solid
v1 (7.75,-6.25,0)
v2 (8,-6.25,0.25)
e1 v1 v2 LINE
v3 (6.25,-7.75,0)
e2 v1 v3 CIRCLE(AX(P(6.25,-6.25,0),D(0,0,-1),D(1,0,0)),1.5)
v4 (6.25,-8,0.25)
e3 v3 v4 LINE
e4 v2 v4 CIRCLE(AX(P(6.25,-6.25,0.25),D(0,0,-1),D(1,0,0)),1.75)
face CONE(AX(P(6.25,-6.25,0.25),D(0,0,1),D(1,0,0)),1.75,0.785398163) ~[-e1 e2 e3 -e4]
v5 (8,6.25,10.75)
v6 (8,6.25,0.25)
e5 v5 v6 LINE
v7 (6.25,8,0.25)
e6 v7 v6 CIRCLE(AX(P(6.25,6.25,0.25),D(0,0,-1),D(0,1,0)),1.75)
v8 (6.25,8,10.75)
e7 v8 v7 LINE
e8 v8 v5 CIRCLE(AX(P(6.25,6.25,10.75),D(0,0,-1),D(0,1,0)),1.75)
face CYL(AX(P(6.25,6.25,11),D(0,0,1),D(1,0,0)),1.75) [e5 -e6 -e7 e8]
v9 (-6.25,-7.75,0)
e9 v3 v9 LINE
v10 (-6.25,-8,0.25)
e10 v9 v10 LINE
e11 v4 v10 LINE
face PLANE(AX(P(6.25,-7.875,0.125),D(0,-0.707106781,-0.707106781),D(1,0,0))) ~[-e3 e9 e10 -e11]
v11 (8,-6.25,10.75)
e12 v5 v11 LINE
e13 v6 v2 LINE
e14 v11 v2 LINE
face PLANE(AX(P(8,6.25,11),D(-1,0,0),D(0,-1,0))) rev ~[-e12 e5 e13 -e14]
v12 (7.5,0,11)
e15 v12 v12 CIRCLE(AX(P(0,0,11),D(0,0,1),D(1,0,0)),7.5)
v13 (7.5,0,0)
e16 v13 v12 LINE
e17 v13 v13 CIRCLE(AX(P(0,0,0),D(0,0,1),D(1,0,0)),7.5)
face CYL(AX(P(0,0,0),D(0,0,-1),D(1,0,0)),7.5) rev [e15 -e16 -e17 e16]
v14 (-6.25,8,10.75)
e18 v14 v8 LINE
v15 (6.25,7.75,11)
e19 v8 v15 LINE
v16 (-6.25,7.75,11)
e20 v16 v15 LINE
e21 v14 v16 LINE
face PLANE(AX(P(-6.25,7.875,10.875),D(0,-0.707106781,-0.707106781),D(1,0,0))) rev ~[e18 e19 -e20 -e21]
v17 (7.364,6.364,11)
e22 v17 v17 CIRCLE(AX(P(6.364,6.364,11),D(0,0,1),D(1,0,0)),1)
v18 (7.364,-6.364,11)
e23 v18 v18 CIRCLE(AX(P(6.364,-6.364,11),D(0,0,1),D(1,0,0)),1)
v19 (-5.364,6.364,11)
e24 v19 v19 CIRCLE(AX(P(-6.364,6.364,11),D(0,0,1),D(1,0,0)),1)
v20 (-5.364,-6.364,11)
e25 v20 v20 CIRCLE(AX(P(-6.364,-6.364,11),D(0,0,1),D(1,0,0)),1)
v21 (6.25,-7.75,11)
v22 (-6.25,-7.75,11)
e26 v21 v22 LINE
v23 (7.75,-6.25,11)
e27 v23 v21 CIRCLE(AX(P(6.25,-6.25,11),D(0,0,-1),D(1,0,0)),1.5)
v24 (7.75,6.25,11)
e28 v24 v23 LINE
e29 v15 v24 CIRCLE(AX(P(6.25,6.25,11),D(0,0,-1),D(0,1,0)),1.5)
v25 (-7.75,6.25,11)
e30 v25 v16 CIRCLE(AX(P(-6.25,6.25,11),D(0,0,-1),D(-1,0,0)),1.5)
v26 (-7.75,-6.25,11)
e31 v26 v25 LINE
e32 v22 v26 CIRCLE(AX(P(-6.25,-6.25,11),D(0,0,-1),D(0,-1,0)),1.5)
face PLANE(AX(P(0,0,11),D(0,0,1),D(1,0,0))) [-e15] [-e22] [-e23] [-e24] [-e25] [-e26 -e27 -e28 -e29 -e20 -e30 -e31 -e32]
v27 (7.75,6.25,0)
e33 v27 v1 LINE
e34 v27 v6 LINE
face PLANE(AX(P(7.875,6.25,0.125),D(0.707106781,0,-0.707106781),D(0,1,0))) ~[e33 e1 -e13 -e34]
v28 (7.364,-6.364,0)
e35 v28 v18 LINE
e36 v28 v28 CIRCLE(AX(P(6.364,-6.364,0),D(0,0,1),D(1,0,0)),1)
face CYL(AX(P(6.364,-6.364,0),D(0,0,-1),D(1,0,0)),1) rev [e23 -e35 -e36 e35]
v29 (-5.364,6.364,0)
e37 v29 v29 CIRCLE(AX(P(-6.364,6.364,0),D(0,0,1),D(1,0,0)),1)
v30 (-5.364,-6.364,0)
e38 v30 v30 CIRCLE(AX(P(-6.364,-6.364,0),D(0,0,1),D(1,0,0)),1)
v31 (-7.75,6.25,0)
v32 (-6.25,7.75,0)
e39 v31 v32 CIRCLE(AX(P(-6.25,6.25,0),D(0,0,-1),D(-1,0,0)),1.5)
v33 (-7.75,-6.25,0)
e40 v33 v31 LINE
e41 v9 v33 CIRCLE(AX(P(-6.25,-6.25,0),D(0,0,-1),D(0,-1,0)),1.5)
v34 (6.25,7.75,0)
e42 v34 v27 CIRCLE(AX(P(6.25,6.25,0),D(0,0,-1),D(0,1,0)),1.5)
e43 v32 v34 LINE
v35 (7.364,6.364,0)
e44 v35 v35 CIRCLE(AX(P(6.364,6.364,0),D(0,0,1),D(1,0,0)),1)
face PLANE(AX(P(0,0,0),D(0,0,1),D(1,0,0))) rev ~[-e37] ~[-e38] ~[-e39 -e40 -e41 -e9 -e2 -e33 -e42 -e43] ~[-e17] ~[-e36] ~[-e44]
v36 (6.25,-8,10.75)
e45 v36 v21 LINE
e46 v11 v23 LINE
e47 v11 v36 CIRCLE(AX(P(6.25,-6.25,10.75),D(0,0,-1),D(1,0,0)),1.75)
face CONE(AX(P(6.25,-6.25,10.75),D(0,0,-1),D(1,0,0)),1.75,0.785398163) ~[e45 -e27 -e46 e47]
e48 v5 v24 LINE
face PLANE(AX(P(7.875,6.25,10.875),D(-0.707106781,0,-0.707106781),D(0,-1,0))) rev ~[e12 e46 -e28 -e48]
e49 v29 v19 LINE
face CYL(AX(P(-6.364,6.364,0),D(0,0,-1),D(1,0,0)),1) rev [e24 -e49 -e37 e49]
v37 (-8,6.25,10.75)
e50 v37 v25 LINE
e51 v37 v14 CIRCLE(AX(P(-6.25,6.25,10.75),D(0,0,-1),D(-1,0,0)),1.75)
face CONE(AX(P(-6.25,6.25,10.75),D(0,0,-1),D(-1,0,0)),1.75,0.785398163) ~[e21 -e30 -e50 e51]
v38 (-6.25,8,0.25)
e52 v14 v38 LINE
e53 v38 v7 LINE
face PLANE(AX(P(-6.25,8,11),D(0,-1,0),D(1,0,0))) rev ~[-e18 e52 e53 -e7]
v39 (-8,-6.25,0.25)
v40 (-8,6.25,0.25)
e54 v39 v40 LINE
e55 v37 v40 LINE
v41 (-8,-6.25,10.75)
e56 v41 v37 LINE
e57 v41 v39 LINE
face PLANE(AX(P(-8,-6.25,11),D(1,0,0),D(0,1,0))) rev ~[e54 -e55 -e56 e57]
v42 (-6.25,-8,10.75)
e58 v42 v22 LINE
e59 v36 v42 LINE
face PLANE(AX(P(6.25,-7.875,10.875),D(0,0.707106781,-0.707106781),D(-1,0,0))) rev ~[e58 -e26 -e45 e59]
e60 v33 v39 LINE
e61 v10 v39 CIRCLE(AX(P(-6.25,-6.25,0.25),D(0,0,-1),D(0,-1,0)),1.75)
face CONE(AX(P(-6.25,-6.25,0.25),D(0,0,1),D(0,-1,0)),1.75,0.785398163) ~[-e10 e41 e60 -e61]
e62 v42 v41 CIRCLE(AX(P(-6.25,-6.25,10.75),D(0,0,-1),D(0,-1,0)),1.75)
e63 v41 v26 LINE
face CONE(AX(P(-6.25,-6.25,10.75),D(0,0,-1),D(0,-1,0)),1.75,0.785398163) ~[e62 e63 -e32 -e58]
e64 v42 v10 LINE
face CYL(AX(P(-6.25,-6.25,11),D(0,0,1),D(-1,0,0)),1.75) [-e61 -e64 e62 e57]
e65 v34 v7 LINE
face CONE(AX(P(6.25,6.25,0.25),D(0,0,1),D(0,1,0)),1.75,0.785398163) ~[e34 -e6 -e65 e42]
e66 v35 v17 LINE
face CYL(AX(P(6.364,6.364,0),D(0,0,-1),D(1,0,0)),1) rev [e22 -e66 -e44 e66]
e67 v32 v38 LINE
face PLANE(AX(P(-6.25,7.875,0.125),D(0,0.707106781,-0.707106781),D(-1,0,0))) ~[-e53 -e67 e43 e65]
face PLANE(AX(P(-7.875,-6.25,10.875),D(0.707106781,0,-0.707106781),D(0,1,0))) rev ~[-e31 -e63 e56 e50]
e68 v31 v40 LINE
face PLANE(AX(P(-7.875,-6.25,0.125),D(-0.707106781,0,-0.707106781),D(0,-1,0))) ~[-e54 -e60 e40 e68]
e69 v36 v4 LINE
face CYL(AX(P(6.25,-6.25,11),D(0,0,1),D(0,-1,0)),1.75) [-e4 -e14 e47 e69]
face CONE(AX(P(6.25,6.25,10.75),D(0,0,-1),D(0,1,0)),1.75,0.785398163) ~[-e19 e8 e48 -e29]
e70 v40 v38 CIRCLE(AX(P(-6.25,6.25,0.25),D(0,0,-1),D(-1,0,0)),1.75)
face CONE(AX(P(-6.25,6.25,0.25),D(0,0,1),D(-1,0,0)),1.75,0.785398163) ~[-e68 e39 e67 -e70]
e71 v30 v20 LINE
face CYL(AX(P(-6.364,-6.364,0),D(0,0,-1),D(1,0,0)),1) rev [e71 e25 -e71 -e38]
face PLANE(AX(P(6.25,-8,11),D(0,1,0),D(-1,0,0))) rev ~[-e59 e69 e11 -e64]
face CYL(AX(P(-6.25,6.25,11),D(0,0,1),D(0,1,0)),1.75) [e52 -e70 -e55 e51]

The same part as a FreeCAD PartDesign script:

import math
import FreeCAD as App
import Part
import Sketcher

V = App.Vector


def edges_at(feature, points):
    """Names of the edges that pass closest to the given points."""
    edges = feature.Shape.Edges
    near = lambda p: min(range(len(edges)), key=lambda i: edges[i].distToShape(Part.Vertex(*p))[0])
    return sorted({f"Edge{near(p) + 1}" for p in points})

doc = App.newDocument("Part")
body = doc.addObject("PartDesign::Body", "Body")

# Sketch on XY plane
sketch1 = body.newObject("Sketcher::SketchObject", "Sketch")
sketch1.AttachmentSupport = (doc.getObject("XY_Plane"), [""])
sketch1.MapMode = "FlatFace"
sketch1.addGeometry([
    Part.Circle(V(0, 0, 0), V(0, 0, 1), 11),  # 0
    Part.Circle(V(-6.4, -6.4, 0), V(0, 0, 1), 1),  # 1
    Part.Circle(V(6.4, -6.4, 0), V(0, 0, 1), 1),  # 2
    Part.Circle(V(-6.4, 6.4, 0), V(0, 0, 1), 1),  # 3
    Part.Circle(V(0, 0, 0), V(0, 0, 1), 7.5),  # 4
    Part.Circle(V(6.4, 6.4, 0), V(0, 0, 1), 1),  # 5
], False)
sketch1.addConstraint([
    Sketcher.Constraint("Coincident", 0, 3, -1, 1),
    Sketcher.Constraint("Coincident", 4, 3, -1, 1),
    Sketcher.Constraint("Equal", 1, 2),
    Sketcher.Constraint("Equal", 2, 3),
    Sketcher.Constraint("Equal", 3, 5),
    Sketcher.Constraint("Symmetric", 2, 3, 3, 3, -1, 1),
    Sketcher.Constraint("Symmetric", 1, 3, 5, 3, -1, 1),
    Sketcher.Constraint("Symmetric", 1, 3, 2, 3, -2),
    Sketcher.Constraint("Diameter", 0, 22.0),
    Sketcher.Constraint("Diameter", 1, 2.0),
    Sketcher.Constraint("Diameter", 4, 15.0),
    Sketcher.Constraint("DistanceX", 1, 3, -1, 1, 6.364),
    Sketcher.Constraint("DistanceY", 1, 3, -1, 1, 6.364),
])
pad1 = body.newObject("PartDesign::Pad", "Pad")
pad1.Profile = sketch1
pad1.Length = 11

# Sketch on XY plane
sketch2 = body.newObject("Sketcher::SketchObject", "Sketch001")
sketch2.AttachmentSupport = (doc.getObject("XY_Plane"), [""])
sketch2.MapMode = "FlatFace"
sketch2.AttachmentOffset = App.Placement(V(0, 0, 11), App.Rotation())
sketch2.addGeometry([
    Part.Circle(V(0, 0, 0), V(0, 0, 1), 15),  # 0
    Part.ArcOfCircle(Part.Circle(V(6.2, -6.2, 0), V(0, 0, 1), 1.8), math.radians(-90), math.radians(0)),  # 1
    Part.LineSegment(V(6.2, -8, 0), V(-6.2, -8, 0)),  # 2
    Part.ArcOfCircle(Part.Circle(V(-6.2, -6.2, 0), V(0, 0, 1), 1.8), math.radians(180), math.radians(270)),  # 3
    Part.LineSegment(V(-8, -6.2, 0), V(-8, 6.2, 0)),  # 4
    Part.ArcOfCircle(Part.Circle(V(-6.2, 6.2, 0), V(0, 0, 1), 1.8), math.radians(90), math.radians(180)),  # 5
    Part.LineSegment(V(-6.2, 8, 0), V(6.2, 8, 0)),  # 6
    Part.ArcOfCircle(Part.Circle(V(6.2, 6.2, 0), V(0, 0, 1), 1.8), math.radians(0), math.radians(90)),  # 7
    Part.LineSegment(V(8, 6.2, 0), V(8, -6.2, 0)),  # 8
], False)
sketch2.addConstraint([
    Sketcher.Constraint("Tangent", 1, 1, 2, 1),
    Sketcher.Constraint("Tangent", 2, 2, 3, 2),
    Sketcher.Constraint("Tangent", 3, 1, 4, 1),
    Sketcher.Constraint("Tangent", 4, 2, 5, 2),
    Sketcher.Constraint("Tangent", 5, 1, 6, 1),
    Sketcher.Constraint("Tangent", 6, 2, 7, 2),
    Sketcher.Constraint("Tangent", 7, 1, 8, 1),
    Sketcher.Constraint("Tangent", 8, 2, 1, 2),
    Sketcher.Constraint("Horizontal", 2),
    Sketcher.Constraint("Vertical", 4),
    Sketcher.Constraint("Horizontal", 6),
    Sketcher.Constraint("Vertical", 8),
    Sketcher.Constraint("Coincident", 0, 3, -1, 1),
    Sketcher.Constraint("Equal", 1, 3),
    Sketcher.Constraint("Equal", 3, 5),
    Sketcher.Constraint("Equal", 5, 7),
    Sketcher.Constraint("Symmetric", 1, 3, 5, 3, -1, 1),
    Sketcher.Constraint("Equal", 6, 4),
    Sketcher.Constraint("Diameter", 0, 30.0),
    Sketcher.Constraint("Radius", 1, 1.75),
    Sketcher.Constraint("DistanceX", 2, 2, 2, 1, 12.5),
])
pocket1 = body.newObject("PartDesign::Pocket", "Pocket")
pocket1.Profile = sketch2
pocket1.Type = "ThroughAll"
doc.recompute()

chamfer = body.newObject("PartDesign::Chamfer", "Chamfer")
chamfer.Base = (pocket1, edges_at(pocket1, [
    (8, 0, 11),
    (7.487, 7.487, 11),
    (0, 8, 11),
    (-7.487, 7.487, 11),
    (-8, 0, 11),
    (-7.487, -7.487, 11),
    (0, -8, 11),
    (7.487, -7.487, 11),
    (8, 0, 0),
    (7.487, -7.487, 0),
    (0, -8, 0),
    (-7.487, -7.487, 0),
    (-8, 0, 0),
    (-7.487, 7.487, 0),
    (0, 8, 0),
    (7.487, 7.487, 0),
]))
chamfer.Size = 0.25

doc.recompute()
